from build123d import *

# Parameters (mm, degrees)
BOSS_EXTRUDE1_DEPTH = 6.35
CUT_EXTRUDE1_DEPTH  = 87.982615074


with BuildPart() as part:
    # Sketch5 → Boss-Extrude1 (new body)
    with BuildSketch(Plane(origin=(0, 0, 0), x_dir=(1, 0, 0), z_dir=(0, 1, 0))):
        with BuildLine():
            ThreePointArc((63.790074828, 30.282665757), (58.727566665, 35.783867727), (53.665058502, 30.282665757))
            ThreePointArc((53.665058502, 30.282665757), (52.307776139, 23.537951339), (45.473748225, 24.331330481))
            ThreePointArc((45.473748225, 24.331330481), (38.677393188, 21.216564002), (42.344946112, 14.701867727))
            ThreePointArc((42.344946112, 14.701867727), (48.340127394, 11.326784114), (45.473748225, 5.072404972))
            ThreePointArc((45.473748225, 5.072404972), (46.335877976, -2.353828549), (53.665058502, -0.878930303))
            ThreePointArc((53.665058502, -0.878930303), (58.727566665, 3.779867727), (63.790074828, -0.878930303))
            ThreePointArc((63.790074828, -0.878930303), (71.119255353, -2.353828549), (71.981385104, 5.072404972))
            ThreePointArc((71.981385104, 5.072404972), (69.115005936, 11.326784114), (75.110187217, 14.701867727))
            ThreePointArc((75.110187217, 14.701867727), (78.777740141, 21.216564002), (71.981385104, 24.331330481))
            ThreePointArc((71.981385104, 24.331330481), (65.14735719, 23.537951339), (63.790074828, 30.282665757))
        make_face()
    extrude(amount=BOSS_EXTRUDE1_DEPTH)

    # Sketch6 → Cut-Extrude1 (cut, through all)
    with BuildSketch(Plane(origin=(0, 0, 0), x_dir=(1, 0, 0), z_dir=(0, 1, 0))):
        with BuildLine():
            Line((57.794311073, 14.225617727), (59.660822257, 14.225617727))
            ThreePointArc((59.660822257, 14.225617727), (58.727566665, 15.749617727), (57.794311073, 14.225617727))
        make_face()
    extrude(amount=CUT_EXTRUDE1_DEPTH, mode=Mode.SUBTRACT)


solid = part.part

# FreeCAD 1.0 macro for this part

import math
import FreeCAD as App
import Part
import Sketcher
Q = App.Units.Quantity

doc = App.newDocument("Part")
body = doc.addObject("PartDesign::Body", "Body")

# Sketch on XZ plane
sketch1 = doc.addObject("Sketcher::SketchObject", "Sketch")
body.addObject(sketch1)
sketch1.AttachmentSupport = (doc.XZ_Plane, [""])
sketch1.MapMode = "FlatFace"
sketch1.addGeometry([
    Part.ArcOfCircle(Part.Circle(App.Vector(59, -31, 0), App.Vector(0, 0, 1), 5), math.radians(175), math.radians(365)),  # 0
    Part.ArcOfCircle(Part.Circle(App.Vector(49, -28, 0), App.Vector(0, 0, 1), 5), math.radians(-31), math.radians(139)),  # 1
    Part.ArcOfCircle(Part.Circle(App.Vector(44, -20, 0), App.Vector(0, 0, 1), 5), math.radians(103), math.radians(293)),  # 2
    Part.ArcOfCircle(Part.Circle(App.Vector(44, -10, 0), App.Vector(0, 0, 1), 5), math.radians(-103), math.radians(67)),  # 3
    Part.ArcOfCircle(Part.Circle(App.Vector(49, -2, 0), App.Vector(0, 0, 1), 5), math.radians(31), math.radians(221)),  # 4
    Part.ArcOfCircle(Part.Circle(App.Vector(59, 1, 0), App.Vector(0, 0, 1), 5), math.radians(-175), math.radians(-5)),  # 5
    Part.ArcOfCircle(Part.Circle(App.Vector(68, -2, 0), App.Vector(0, 0, 1), 5), math.radians(-41), math.radians(149)),  # 6
    Part.ArcOfCircle(Part.Circle(App.Vector(74, -10, 0), App.Vector(0, 0, 1), 5), math.radians(113), math.radians(283)),  # 7
    Part.ArcOfCircle(Part.Circle(App.Vector(74, -20, 0), App.Vector(0, 0, 1), 5), math.radians(-113), math.radians(77)),  # 8
    Part.ArcOfCircle(Part.Circle(App.Vector(68, -28, 0), App.Vector(0, 0, 1), 5), math.radians(41), math.radians(211)),  # 9
], False)
sketch1.addConstraint([
    Sketcher.Constraint("Coincident", 0, 1, 1, 1),
    Sketcher.Constraint("Coincident", 1, 2, 2, 2),
    Sketcher.Constraint("Coincident", 2, 1, 3, 1),
    Sketcher.Constraint("Coincident", 3, 2, 4, 2),
    Sketcher.Constraint("Coincident", 4, 1, 5, 1),
    Sketcher.Constraint("Coincident", 5, 2, 6, 2),
    Sketcher.Constraint("Coincident", 6, 1, 7, 1),
    Sketcher.Constraint("Coincident", 7, 2, 8, 2),
    Sketcher.Constraint("Coincident", 8, 1, 9, 1),
    Sketcher.Constraint("Coincident", 9, 2, 0, 2),
    Sketcher.Constraint("Equal", 0, 1),
    Sketcher.Constraint("Equal", 1, 2),
    Sketcher.Constraint("Equal", 2, 3),
    Sketcher.Constraint("Equal", 3, 4),
    Sketcher.Constraint("Equal", 4, 5),
    Sketcher.Constraint("Equal", 5, 6),
    Sketcher.Constraint("Equal", 6, 7),
    Sketcher.Constraint("Equal", 7, 8),
    Sketcher.Constraint("Equal", 8, 9),
    Sketcher.Constraint("Horizontal", 4, 3, 6, 3),
    Sketcher.Constraint("Horizontal", 3, 3, 7, 3),
    Sketcher.Constraint("Horizontal", 2, 3, 8, 3),
    Sketcher.Constraint("Horizontal", 1, 3, 9, 3),
    Sketcher.Constraint("Horizontal", 4, 1, 5, 2),
    Sketcher.Constraint("Horizontal", 3, 2, 6, 1),
    Sketcher.Constraint("Horizontal", 2, 1, 7, 2),
    Sketcher.Constraint("Horizontal", 1, 2, 8, 1),
    Sketcher.Constraint("Horizontal", 0, 1, 9, 2),
    Sketcher.Constraint("Vertical", 2, 3, 3, 3),
    Sketcher.Constraint("Vertical", 1, 3, 4, 3),
    Sketcher.Constraint("Vertical", 1, 2, 3, 2),
    Sketcher.Constraint("Vertical", 0, 1, 4, 1),
    Sketcher.Constraint("Radius", 0, Q("0.2 in")),
    Sketcher.Constraint("DistanceY", 0, 3, 5, 3, Q("1.26 in")),
    Sketcher.Constraint("DistanceY", 1, 3, 2, 3, Q("0.315 in")),
    Sketcher.Constraint("DistanceY", 0, 3, 0, 1, 0.421202),
    Sketcher.Constraint("DistanceX", 2, 3, 0, 1, 10.156298),
    Sketcher.Constraint("DistanceX", -1, 1, 2, 3, 43.50876),
    Sketcher.Constraint("DistanceX", -1, 1, 1, 2, 45.473748),
    Sketcher.Constraint("DistanceY", 1, 2, -1, 1, 24.33133),
])
pad1 = doc.addObject("PartDesign::Pad", "Pad")
body.addObject(pad1)
pad1.Profile = sketch1
pad1.Length = Q("0.25 in")
pad1.Reversed = True

# Sketch on XZ plane
sketch2 = doc.addObject("Sketcher::SketchObject", "Sketch001")
body.addObject(sketch2)
sketch2.AttachmentSupport = (doc.XZ_Plane, [""])
sketch2.MapMode = "FlatFace"
sketch2.addGeometry([
    Part.LineSegment(App.Vector(57.8, -14.2, 0), App.Vector(59.7, -14.2, 0)),
    Part.ArcOfCircle(Part.Circle(App.Vector(58.7, -14.7, 0), App.Vector(0, 0, 1), 1), math.radians(153), math.radians(387)),
], False)
sketch2.addConstraint([
    Sketcher.Constraint("Coincident", 0, 1, 1, 1),
    Sketcher.Constraint("Coincident", 1, 2, 0, 2),
    Sketcher.Constraint("Horizontal", 0),
    Sketcher.Constraint("Radius", 1, 1.04775),
    Sketcher.Constraint("DistanceX", 0, 1, 0, 2, 1.866511),
    Sketcher.Constraint("DistanceX", -1, 1, 0, 1, 57.794311),
    Sketcher.Constraint("DistanceY", 1, 3, -1, 1, 14.701868),
])
pocket1 = doc.addObject("PartDesign::Pocket", "Pocket")
body.addObject(pocket1)
pocket1.Profile = sketch2
pocket1.Type = "ThroughAll"

doc.recompute()
